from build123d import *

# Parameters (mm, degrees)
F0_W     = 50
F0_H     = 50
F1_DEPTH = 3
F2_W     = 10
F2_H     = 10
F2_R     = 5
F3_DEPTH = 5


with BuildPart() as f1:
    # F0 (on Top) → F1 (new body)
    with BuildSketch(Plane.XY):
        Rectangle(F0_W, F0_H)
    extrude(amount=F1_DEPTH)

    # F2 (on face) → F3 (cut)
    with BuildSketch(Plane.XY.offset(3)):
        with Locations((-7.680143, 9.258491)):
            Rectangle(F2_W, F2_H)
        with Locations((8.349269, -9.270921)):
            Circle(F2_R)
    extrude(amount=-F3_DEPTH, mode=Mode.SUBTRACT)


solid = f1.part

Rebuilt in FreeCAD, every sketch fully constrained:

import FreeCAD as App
import Part
import Sketcher
Q = App.Units.Quantity

doc = App.newDocument("Part")
body = doc.addObject("PartDesign::Body", "Body")

# Sketch on XY plane
sketch1 = doc.addObject("Sketcher::SketchObject", "Sketch")
body.addObject(sketch1)
sketch1.AttachmentSupport = (doc.XY_Plane, [""])
sketch1.MapMode = "FlatFace"
sketch1.addGeometry(Part.LineSegment(App.Vector(-25, 25, 0), App.Vector(-25, -25, 0)), False)
sketch1.addGeometry(Part.LineSegment(App.Vector(-25, -25, 0), App.Vector(25, -25, 0)), False)
sketch1.addGeometry(Part.LineSegment(App.Vector(25, -25, 0), App.Vector(25, 25, 0)), False)
sketch1.addGeometry(Part.LineSegment(App.Vector(25, 25, 0), App.Vector(-25, 25, 0)), False)
sketch1.addConstraint(Sketcher.Constraint("Coincident", 0, 2, 1, 1))
sketch1.addConstraint(Sketcher.Constraint("Coincident", 1, 2, 2, 1))
sketch1.addConstraint(Sketcher.Constraint("Coincident", 2, 2, 3, 1))
sketch1.addConstraint(Sketcher.Constraint("Coincident", 3, 2, 0, 1))
sketch1.addConstraint(Sketcher.Constraint("Vertical", 0))
sketch1.addConstraint(Sketcher.Constraint("Horizontal", 1))
sketch1.addConstraint(Sketcher.Constraint("Vertical", 2))
sketch1.addConstraint(Sketcher.Constraint("Horizontal", 3))
sketch1.addConstraint(Sketcher.Constraint("Symmetric", 0, 2, 2, 2, -1, 1))
sketch1.addConstraint(Sketcher.Constraint("Equal", 3, 0))
sketch1.addConstraint(Sketcher.Constraint("DistanceX", 1, 1, 1, 2, Q("50 mm")))
pad1 = doc.addObject("PartDesign::Pad", "Pad")
body.addObject(pad1)
pad1.Profile = sketch1
pad1.Length = 3

# Sketch on XY plane
sketch2 = doc.addObject("Sketcher::SketchObject", "Sketch001")
body.addObject(sketch2)
sketch2.AttachmentSupport = (doc.XY_Plane, [""])
sketch2.MapMode = "FlatFace"
sketch2.AttachmentOffset = App.Placement(App.Vector(0, 0, 3), App.Rotation())
sketch2.addGeometry(Part.LineSegment(App.Vector(-13, 14, 0), App.Vector(-13, 4, 0)), False)
sketch2.addGeometry(Part.LineSegment(App.Vector(-13, 4, 0), App.Vector(-3, 4, 0)), False)
sketch2.addGeometry(Part.LineSegment(App.Vector(-3, 4, 0), App.Vector(-3, 14, 0)), False)
sketch2.addGeometry(Part.LineSegment(App.Vector(-3, 14, 0), App.Vector(-13, 14, 0)), False)
sketch2.addGeometry(Part.Circle(App.Vector(8, -9, 0), App.Vector(0, 0, 1), 5), False)
sketch2.addConstraint(Sketcher.Constraint("Coincident", 0, 2, 1, 1))
sketch2.addConstraint(Sketcher.Constraint("Coincident", 1, 2, 2, 1))
sketch2.addConstraint(Sketcher.Constraint("Coincident", 2, 2, 3, 1))
sketch2.addConstraint(Sketcher.Constraint("Coincident", 3, 2, 0, 1))
sketch2.addConstraint(Sketcher.Constraint("Vertical", 0))
sketch2.addConstraint(Sketcher.Constraint("Horizontal", 1))
sketch2.addConstraint(Sketcher.Constraint("Vertical", 2))
sketch2.addConstraint(Sketcher.Constraint("Horizontal", 3))
sketch2.addConstraint(Sketcher.Constraint("Equal", 3, 0))
sketch2.addConstraint(Sketcher.Constraint("Diameter", 4, Q("10 mm")))
sketch2.addConstraint(Sketcher.Constraint("DistanceX", 1, 1, 1, 2, Q("10 mm")))
sketch2.addConstraint(Sketcher.Constraint("DistanceX", -1, 1, 4, 3, Q("8.349269 mm")))
sketch2.addConstraint(Sketcher.Constraint("DistanceY", 4, 3, -1, 1, Q("9.270921 mm")))
sketch2.addConstraint(Sketcher.Constraint("DistanceY", -1, 1, 0, 2, Q("4.258491 mm")))
sketch2.addConstraint(Sketcher.Constraint("DistanceX", 0, 2, -1, 1, Q("12.680143 mm")))
pocket1 = doc.addObject("PartDesign::Pocket", "Pocket")
body.addObject(pocket1)
pocket1.Profile = sketch2
pocket1.Length = 5

doc.recompute()
